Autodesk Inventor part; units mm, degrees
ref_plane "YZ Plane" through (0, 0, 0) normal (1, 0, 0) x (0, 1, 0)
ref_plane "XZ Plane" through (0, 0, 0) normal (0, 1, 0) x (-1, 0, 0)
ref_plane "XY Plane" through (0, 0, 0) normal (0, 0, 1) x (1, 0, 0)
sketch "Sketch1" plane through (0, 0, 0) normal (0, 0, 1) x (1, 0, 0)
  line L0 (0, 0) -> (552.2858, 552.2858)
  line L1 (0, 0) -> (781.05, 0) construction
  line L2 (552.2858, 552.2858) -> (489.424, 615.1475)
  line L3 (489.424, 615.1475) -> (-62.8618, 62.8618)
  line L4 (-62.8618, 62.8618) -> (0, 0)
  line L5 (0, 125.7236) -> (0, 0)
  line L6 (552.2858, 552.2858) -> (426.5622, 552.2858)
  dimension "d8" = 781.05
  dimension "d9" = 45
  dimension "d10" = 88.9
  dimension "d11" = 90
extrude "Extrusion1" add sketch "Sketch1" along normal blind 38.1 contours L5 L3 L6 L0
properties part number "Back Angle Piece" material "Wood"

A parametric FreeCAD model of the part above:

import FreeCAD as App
import Part
import Sketcher
Q = App.Units.Quantity

doc = App.newDocument("Part")
body = doc.addObject("PartDesign::Body", "Body")

sketch1 = body.newObject("Sketcher::SketchObject", "Sketch")
sketch1.AttachmentSupport = (doc.getObject("XY_Plane"), [""])
sketch1.MapMode = "FlatFace"
sketch1.addGeometry([
    Part.LineSegment(App.Vector(0, 125.7236, 0), App.Vector(0, 0, 0)),
    Part.LineSegment(App.Vector(0, 0, 0), App.Vector(552.2858, 552.2858, 0)),
    Part.LineSegment(App.Vector(552.2858, 552.2858, 0), App.Vector(426.5622, 552.2858, 0)),
    Part.LineSegment(App.Vector(426.562244, 552.285756, 0), App.Vector(0.000006, 125.723594, 0)),
], False)
sketch1.addConstraint([
    Sketcher.Constraint("Coincident", 0, 2, 1, 1),
    Sketcher.Constraint("Coincident", 1, 2, 2, 1),
    Sketcher.Constraint("Coincident", 2, 2, 3, 1),
    Sketcher.Constraint("Coincident", 3, 2, 0, 1),
    Sketcher.Constraint("Vertical", 0),
    Sketcher.Constraint("Horizontal", 2),
    Sketcher.Constraint("Coincident", 0, 2, -1, 1),
    Sketcher.Constraint("Parallel", 1, 3),
    Sketcher.Constraint("Equal", 2, 0),
    Sketcher.Constraint("Distance", 1, Q("30.75 in")),
    Sketcher.Constraint("Distance", 3, Q("23.75 in")),
])
pad1 = body.newObject("PartDesign::Pad", "Pad")
pad1.Profile = sketch1
pad1.Length = Q("1.5 in")

doc.recompute()
